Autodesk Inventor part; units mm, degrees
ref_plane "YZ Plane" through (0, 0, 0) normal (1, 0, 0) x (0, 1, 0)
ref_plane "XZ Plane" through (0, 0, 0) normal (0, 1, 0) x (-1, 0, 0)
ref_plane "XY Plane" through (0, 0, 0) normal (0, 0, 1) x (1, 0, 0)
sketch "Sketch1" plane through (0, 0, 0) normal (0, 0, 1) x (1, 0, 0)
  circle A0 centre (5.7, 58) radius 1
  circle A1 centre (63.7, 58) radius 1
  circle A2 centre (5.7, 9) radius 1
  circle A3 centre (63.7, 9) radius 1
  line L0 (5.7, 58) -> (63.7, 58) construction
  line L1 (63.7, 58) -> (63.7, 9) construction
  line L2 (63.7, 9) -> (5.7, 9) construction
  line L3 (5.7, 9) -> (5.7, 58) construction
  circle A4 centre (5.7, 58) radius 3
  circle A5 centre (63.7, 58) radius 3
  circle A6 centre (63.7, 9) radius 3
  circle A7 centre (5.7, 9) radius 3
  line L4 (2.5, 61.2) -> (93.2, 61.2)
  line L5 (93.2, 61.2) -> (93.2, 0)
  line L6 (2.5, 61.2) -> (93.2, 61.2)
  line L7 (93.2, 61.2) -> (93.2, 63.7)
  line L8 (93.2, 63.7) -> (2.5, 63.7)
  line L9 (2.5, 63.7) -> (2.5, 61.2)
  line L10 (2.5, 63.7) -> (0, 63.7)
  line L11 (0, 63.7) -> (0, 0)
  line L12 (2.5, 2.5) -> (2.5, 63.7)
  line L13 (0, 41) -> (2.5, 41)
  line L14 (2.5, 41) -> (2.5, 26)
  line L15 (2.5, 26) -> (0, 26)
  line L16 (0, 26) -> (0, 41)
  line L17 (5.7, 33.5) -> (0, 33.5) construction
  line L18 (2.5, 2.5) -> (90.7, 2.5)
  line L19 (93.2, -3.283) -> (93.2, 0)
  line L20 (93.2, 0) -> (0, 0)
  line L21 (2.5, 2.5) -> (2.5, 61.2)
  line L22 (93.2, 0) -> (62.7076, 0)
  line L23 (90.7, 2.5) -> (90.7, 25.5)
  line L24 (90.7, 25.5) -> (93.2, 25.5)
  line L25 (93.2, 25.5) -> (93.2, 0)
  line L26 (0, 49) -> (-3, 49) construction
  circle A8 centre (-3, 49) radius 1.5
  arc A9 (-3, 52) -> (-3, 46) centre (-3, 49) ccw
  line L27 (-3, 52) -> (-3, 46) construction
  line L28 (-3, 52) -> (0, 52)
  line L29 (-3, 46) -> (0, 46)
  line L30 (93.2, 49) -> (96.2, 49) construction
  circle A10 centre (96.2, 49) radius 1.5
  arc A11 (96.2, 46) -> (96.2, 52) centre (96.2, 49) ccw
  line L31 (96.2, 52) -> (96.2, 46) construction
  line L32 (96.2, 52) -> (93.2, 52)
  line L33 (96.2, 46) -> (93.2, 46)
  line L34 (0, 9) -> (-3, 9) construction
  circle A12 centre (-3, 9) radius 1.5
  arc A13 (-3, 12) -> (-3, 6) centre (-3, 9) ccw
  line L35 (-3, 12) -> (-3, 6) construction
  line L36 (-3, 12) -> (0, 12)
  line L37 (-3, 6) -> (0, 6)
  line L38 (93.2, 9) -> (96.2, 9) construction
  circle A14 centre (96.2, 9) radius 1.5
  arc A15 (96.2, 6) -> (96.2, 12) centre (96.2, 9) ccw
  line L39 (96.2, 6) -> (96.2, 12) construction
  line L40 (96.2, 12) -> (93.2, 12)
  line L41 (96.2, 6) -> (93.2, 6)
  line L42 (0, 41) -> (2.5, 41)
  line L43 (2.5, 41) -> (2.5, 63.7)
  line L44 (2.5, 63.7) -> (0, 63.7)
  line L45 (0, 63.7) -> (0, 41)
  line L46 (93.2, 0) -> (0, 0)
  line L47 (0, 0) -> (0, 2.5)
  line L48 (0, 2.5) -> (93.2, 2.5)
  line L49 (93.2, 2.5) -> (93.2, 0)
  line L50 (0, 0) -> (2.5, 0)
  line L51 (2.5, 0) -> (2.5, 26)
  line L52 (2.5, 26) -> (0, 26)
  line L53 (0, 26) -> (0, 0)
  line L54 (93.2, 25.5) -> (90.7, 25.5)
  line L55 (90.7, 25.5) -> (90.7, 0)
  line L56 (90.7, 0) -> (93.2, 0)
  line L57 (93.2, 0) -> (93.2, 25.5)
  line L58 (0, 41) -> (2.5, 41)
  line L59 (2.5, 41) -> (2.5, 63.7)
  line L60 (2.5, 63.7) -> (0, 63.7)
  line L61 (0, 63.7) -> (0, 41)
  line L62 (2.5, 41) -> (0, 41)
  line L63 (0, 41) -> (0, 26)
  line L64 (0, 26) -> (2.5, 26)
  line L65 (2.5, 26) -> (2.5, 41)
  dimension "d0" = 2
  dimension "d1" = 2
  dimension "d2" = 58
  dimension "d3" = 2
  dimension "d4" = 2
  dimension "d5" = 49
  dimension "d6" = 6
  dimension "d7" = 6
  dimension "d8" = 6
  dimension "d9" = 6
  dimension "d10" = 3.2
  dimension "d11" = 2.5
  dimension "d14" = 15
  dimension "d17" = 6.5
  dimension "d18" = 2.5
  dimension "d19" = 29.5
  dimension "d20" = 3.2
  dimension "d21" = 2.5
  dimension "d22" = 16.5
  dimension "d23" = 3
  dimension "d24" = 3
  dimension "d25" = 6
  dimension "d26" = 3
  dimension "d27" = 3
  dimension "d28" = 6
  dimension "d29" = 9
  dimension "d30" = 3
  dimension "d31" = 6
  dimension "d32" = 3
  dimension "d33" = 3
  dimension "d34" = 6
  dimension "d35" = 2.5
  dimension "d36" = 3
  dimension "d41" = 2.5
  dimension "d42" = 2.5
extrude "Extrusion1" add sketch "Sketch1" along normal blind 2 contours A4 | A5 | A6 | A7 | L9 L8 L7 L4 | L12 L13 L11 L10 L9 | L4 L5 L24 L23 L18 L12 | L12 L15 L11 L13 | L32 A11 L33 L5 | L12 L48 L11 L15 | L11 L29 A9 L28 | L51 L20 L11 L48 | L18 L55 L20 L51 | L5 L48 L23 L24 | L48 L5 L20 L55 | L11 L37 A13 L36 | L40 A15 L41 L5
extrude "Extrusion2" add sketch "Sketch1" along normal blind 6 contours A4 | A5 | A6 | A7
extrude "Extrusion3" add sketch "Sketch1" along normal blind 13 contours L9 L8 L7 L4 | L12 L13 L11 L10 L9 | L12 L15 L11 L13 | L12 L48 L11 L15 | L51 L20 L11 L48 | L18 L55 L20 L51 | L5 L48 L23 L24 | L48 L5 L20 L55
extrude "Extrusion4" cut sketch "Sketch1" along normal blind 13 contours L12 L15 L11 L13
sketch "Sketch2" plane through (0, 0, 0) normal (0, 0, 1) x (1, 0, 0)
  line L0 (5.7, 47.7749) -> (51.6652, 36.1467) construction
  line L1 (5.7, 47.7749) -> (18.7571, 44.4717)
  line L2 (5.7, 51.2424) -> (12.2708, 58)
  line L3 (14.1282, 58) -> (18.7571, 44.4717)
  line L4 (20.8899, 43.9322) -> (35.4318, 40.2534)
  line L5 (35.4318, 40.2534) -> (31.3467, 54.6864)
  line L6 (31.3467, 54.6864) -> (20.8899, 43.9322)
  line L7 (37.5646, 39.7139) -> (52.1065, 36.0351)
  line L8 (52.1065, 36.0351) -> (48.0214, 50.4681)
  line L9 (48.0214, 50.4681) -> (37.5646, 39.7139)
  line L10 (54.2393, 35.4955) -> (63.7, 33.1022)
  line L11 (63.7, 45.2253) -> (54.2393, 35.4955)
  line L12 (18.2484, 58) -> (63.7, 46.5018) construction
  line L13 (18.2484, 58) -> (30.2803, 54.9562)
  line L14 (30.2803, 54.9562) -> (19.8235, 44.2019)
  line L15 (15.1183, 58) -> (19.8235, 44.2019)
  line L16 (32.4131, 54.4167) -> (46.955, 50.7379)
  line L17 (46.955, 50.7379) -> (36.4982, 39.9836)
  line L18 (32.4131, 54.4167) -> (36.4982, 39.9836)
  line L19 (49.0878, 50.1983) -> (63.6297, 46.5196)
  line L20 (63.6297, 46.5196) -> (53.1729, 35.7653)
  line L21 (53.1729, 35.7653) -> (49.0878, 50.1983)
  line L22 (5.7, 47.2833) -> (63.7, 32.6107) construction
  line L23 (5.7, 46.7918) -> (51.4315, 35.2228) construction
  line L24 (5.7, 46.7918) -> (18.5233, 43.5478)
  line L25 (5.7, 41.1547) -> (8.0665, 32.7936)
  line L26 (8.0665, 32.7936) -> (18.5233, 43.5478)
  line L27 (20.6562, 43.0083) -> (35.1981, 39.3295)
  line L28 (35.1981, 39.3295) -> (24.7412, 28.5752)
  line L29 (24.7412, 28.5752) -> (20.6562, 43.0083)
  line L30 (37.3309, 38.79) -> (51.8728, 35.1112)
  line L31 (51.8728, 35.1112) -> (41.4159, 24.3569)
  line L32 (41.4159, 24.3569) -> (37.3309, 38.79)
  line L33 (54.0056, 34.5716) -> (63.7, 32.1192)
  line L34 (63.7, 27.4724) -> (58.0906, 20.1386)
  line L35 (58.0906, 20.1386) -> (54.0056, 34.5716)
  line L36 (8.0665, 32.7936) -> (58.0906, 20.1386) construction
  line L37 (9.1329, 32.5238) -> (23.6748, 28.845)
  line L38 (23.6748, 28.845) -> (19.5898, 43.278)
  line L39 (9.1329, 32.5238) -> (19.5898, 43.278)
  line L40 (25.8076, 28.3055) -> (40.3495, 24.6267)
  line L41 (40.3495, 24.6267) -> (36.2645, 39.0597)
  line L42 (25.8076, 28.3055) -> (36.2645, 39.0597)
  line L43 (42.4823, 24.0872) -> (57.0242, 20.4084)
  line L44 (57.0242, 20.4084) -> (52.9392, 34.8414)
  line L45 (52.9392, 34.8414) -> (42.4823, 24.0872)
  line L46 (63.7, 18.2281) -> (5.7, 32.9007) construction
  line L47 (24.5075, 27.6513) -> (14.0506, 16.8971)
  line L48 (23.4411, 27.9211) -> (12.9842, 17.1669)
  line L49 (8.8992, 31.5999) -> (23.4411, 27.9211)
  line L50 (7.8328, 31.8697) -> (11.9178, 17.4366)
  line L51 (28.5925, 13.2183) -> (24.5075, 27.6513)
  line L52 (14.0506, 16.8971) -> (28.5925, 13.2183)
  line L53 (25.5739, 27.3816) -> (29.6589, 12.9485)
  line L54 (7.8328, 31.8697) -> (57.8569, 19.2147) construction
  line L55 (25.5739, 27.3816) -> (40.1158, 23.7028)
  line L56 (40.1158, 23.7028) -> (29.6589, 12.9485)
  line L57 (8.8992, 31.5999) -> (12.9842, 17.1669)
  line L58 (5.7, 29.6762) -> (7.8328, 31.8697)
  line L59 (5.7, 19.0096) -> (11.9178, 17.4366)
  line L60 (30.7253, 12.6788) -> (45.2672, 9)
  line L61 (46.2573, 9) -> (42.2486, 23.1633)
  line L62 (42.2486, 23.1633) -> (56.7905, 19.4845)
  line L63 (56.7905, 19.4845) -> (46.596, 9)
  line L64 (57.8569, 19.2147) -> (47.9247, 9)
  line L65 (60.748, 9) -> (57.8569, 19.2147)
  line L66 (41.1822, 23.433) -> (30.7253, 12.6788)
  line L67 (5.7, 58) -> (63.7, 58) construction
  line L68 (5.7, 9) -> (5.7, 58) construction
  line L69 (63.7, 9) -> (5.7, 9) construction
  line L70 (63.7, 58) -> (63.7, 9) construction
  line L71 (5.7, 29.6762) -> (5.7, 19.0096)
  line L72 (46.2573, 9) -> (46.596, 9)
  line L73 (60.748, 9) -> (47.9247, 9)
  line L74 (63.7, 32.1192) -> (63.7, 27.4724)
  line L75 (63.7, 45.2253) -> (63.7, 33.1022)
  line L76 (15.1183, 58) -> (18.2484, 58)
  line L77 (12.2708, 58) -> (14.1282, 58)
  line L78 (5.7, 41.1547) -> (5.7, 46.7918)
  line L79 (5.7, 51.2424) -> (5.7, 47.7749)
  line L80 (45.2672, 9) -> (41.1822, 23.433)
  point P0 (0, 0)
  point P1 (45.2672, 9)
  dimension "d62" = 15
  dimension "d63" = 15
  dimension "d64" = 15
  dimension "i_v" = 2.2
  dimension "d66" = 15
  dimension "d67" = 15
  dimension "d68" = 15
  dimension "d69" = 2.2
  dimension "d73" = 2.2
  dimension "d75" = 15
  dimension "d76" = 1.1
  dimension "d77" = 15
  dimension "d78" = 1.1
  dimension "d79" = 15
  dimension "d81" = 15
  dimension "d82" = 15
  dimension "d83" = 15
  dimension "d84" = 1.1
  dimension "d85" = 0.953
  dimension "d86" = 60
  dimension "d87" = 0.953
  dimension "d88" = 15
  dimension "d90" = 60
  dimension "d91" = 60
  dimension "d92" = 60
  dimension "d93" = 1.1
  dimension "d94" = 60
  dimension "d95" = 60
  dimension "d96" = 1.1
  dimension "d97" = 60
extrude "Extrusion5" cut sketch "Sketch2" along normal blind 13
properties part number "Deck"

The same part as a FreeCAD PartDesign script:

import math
import FreeCAD as App
import Part
import Sketcher

V = App.Vector
Q = App.Units.Quantity

doc = App.newDocument("Part")
body = doc.addObject("PartDesign::Body", "Body")

sketch1 = body.newObject("Sketcher::SketchObject", "Sketch")
sketch1.AttachmentSupport = (doc.getObject("XY_Plane"), [""])
sketch1.MapMode = "FlatFace"
sketch1.addGeometry([
    Part.LineSegment(V(93.2, 52, 0), V(93.2, 63.7, 0)),
    Part.LineSegment(V(93.2, 63.7, 0), V(0, 63.7, 0)),
    Part.LineSegment(V(0, 63.7, 0), V(0, 52, 0)),
    Part.LineSegment(V(0, 52, 0), V(-3, 52, 0)),
    Part.ArcOfCircle(Part.Circle(V(-3, 49, 0), V(0, 0, 1), 3), math.radians(90), math.radians(270)),
    Part.LineSegment(V(-3, 46, 0), V(0, 46, 0)),
    Part.LineSegment(V(0, 46, 0), V(0, 12, 0)),
    Part.LineSegment(V(0, 12, 0), V(-3, 12, 0)),
    Part.ArcOfCircle(Part.Circle(V(-3, 9, 0), V(0, 0, 1), 3), math.radians(90), math.radians(270)),
    Part.LineSegment(V(-3, 6, 0), V(0, 6, 0)),
    Part.LineSegment(V(0, 6, 0), V(0, 0, 0)),
    Part.LineSegment(V(0, 0, 0), V(93.2, 0, 0)),
    Part.LineSegment(V(93.2, 0, 0), V(93.2, 6, 0)),
    Part.LineSegment(V(93.2, 6, 0), V(96.2, 6, 0)),
    Part.ArcOfCircle(Part.Circle(V(96.2, 9, 0), V(0, 0, 1), 3), math.radians(-90), math.radians(90)),
    Part.LineSegment(V(96.2, 12, 0), V(93.2, 12, 0)),
    Part.LineSegment(V(93.2, 12, 0), V(93.2, 46, 0)),
    Part.LineSegment(V(93.2, 46, 0), V(96.2, 46, 0)),
    Part.ArcOfCircle(Part.Circle(V(96.2, 49, 0), V(0, 0, 1), 3), math.radians(-90), math.radians(90)),
    Part.LineSegment(V(96.2, 52, 0), V(93.2, 52, 0)),
    Part.Circle(V(5.7, 58, 0), V(0, 0, 1), 1),
    Part.Circle(V(96.2, 49, 0), V(0, 0, 1), 1.5),
    Part.Circle(V(5.7, 9, 0), V(0, 0, 1), 1),
    Part.Circle(V(63.7, 9, 0), V(0, 0, 1), 1),
    Part.Circle(V(63.7, 58, 0), V(0, 0, 1), 1),
    Part.Circle(V(96.2, 9, 0), V(0, 0, 1), 1.5),
    Part.Circle(V(-3, 9, 0), V(0, 0, 1), 1.5),
    Part.Circle(V(-3, 49, 0), V(0, 0, 1), 1.5),
], False)
sketch1.addConstraint([
    Sketcher.Constraint("Coincident", 0, 2, 1, 1),
    Sketcher.Constraint("Coincident", 1, 2, 2, 1),
    Sketcher.Constraint("Coincident", 2, 2, 3, 1),
    Sketcher.Constraint("Tangent", 3, 2, 4, 1),
    Sketcher.Constraint("Tangent", 4, 2, 5, 1),
    Sketcher.Constraint("Coincident", 5, 2, 6, 1),
    Sketcher.Constraint("Coincident", 6, 2, 7, 1),
    Sketcher.Constraint("Tangent", 7, 2, 8, 1),
    Sketcher.Constraint("Tangent", 8, 2, 9, 1),
    Sketcher.Constraint("Coincident", 9, 2, 10, 1),
    Sketcher.Constraint("Coincident", 10, 2, 11, 1),
    Sketcher.Constraint("Coincident", 11, 2, 12, 1),
    Sketcher.Constraint("Coincident", 12, 2, 13, 1),
    Sketcher.Constraint("Tangent", 13, 2, 14, 1),
    Sketcher.Constraint("Tangent", 14, 2, 15, 1),
    Sketcher.Constraint("Coincident", 15, 2, 16, 1),
    Sketcher.Constraint("Coincident", 16, 2, 17, 1),
    Sketcher.Constraint("Tangent", 17, 2, 18, 1),
    Sketcher.Constraint("Tangent", 18, 2, 19, 1),
    Sketcher.Constraint("Coincident", 19, 2, 0, 1),
    Sketcher.Constraint("Vertical", 0),
    Sketcher.Constraint("Horizontal", 1),
    Sketcher.Constraint("Vertical", 2),
    Sketcher.Constraint("Horizontal", 3),
    Sketcher.Constraint("Horizontal", 5),
    Sketcher.Constraint("Vertical", 6),
    Sketcher.Constraint("Horizontal", 7),
    Sketcher.Constraint("Horizontal", 9),
    Sketcher.Constraint("Vertical", 10),
    Sketcher.Constraint("Horizontal", 11),
    Sketcher.Constraint("Vertical", 12),
    Sketcher.Constraint("Horizontal", 13),
    Sketcher.Constraint("Horizontal", 15),
    Sketcher.Constraint("Vertical", 16),
    Sketcher.Constraint("Horizontal", 17),
    Sketcher.Constraint("Horizontal", 19),
    Sketcher.Constraint("Coincident", 10, 2, -1, 1),
    Sketcher.Constraint("Coincident", 21, 3, 18, 3),
    Sketcher.Constraint("Coincident", 25, 3, 14, 3),
    Sketcher.Constraint("Coincident", 26, 3, 8, 3),
    Sketcher.Constraint("Coincident", 27, 3, 4, 3),
    Sketcher.Constraint("Equal", 4, 8),
    Sketcher.Constraint("Equal", 8, 14),
    Sketcher.Constraint("Equal", 14, 18),
    Sketcher.Constraint("Equal", 20, 22),
    Sketcher.Constraint("Equal", 22, 23),
    Sketcher.Constraint("Equal", 23, 24),
    Sketcher.Constraint("Equal", 21, 25),
    Sketcher.Constraint("Equal", 25, 26),
    Sketcher.Constraint("Equal", 26, 27),
    Sketcher.Constraint("PointOnObject", 1, 2, -2),
    Sketcher.Constraint("PointOnObject", 5, 2, -2),
    Sketcher.Constraint("Horizontal", 8, 3, 14, 3),
    Sketcher.Constraint("Horizontal", 4, 3, 18, 3),
    Sketcher.Constraint("Horizontal", 14, 3, 22, 3),
    Sketcher.Constraint("Horizontal", 22, 3, 23, 3),
    Sketcher.Constraint("Horizontal", 20, 3, 24, 3),
    Sketcher.Constraint("Vertical", 4, 3, 8, 3),
    Sketcher.Constraint("Vertical", 14, 3, 18, 3),
    Sketcher.Constraint("Vertical", 20, 3, 22, 3),
    Sketcher.Constraint("Vertical", 23, 3, 24, 3),
    Sketcher.Constraint("Vertical", 0, 2, 11, 2),
    Sketcher.Constraint("Vertical", 12, 2, 15, 2),
    Sketcher.Constraint("Equal", 9, 13),
    Sketcher.Constraint("Diameter", 20, 2.0),
    Sketcher.Constraint("Diameter", 21, 3.0),
    Sketcher.Constraint("Radius", 4, 3.0),
    Sketcher.Constraint("DistanceX", 3, 2, 3, 1, 3.0),
    Sketcher.Constraint("DistanceY", 10, 2, 10, 1, 6.0),
    Sketcher.Constraint("DistanceY", -1, 1, 4, 3, 49.0),
    Sketcher.Constraint("DistanceY", -1, 1, 20, 3, 58.0),
    Sketcher.Constraint("DistanceX", 22, 3, 23, 3, 58.0),
    Sketcher.Constraint("DistanceX", 24, 3, 0, 2, 29.5),
    Sketcher.Constraint("DistanceX", 1, 2, 1, 1, 93.2),
    Sketcher.Constraint("DistanceY", 0, 1, 0, 2, 11.7),
])
pad1 = body.newObject("PartDesign::Pad", "Pad")
pad1.Profile = sketch1
pad1.Length = 2

sketch2 = body.newObject("Sketcher::SketchObject", "Sketch001")
sketch2.AttachmentSupport = (doc.getObject("XY_Plane"), [""])
sketch2.MapMode = "FlatFace"
sketch2.addGeometry([
    Part.Circle(V(5.7, 58, 0), V(0, 0, 1), 3),
    Part.Circle(V(5.7, 58, 0), V(0, 0, 1), 1),
    Part.Circle(V(63.7, 58, 0), V(0, 0, 1), 3),
    Part.Circle(V(63.7, 58, 0), V(0, 0, 1), 1),
    Part.Circle(V(63.7, 9, 0), V(0, 0, 1), 3),
    Part.Circle(V(63.7, 9, 0), V(0, 0, 1), 1),
    Part.Circle(V(5.7, 9, 0), V(0, 0, 1), 3),
    Part.Circle(V(5.7, 9, 0), V(0, 0, 1), 1),
], False)
sketch2.addConstraint([
    Sketcher.Constraint("Coincident", 1, 3, 0, 3),
    Sketcher.Constraint("Coincident", 3, 3, 2, 3),
    Sketcher.Constraint("Coincident", 5, 3, 4, 3),
    Sketcher.Constraint("Coincident", 7, 3, 6, 3),
    Sketcher.Constraint("Equal", 0, 2),
    Sketcher.Constraint("Equal", 1, 3),
    Sketcher.Constraint("Equal", 2, 4),
    Sketcher.Constraint("Equal", 3, 5),
    Sketcher.Constraint("Equal", 4, 6),
    Sketcher.Constraint("Equal", 5, 7),
    Sketcher.Constraint("Horizontal", 1, 3, 2, 3),
    Sketcher.Constraint("Horizontal", 5, 3, 6, 3),
    Sketcher.Constraint("Vertical", 3, 3, 4, 3),
    Sketcher.Constraint("Vertical", 1, 3, 6, 3),
    Sketcher.Constraint("Diameter", 0, 6.0),
    Sketcher.Constraint("Diameter", 1, 2.0),
    Sketcher.Constraint("DistanceY", -1, 1, 0, 3, 58.0),
    Sketcher.Constraint("DistanceY", -1, 1, 4, 3, 9.0),
    Sketcher.Constraint("DistanceX", 0, 3, 2, 3, 58.0),
    Sketcher.Constraint("DistanceX", -1, 1, 0, 3, 5.7),
])
pad2 = body.newObject("PartDesign::Pad", "Pad001")
pad2.Profile = sketch2
pad2.Length = 6

sketch3 = body.newObject("Sketcher::SketchObject", "Sketch002")
sketch3.AttachmentSupport = (doc.getObject("XY_Plane"), [""])
sketch3.MapMode = "FlatFace"
sketch3.addGeometry([
    Part.LineSegment(V(93.2, 63.7, 0), V(0, 63.7, 0)),
    Part.LineSegment(V(0, 63.7, 0), V(0, 0, 0)),
    Part.LineSegment(V(0, 0, 0), V(93.2, 0, 0)),
    Part.LineSegment(V(93.2, 0, 0), V(93.2, 25.5, 0)),
    Part.LineSegment(V(93.2, 25.5, 0), V(90.7, 25.5, 0)),
    Part.LineSegment(V(90.7, 25.5, 0), V(90.7, 2.5, 0)),
    Part.LineSegment(V(90.7, 2.5, 0), V(2.5, 2.5, 0)),
    Part.LineSegment(V(2.5, 2.5, 0), V(2.5, 61.2, 0)),
    Part.LineSegment(V(2.5, 61.2, 0), V(93.2, 61.2, 0)),
    Part.LineSegment(V(93.2, 61.2, 0), V(93.2, 63.7, 0)),
], False)
sketch3.addConstraint([
    Sketcher.Constraint("Coincident", 0, 2, 1, 1),
    Sketcher.Constraint("Coincident", 1, 2, 2, 1),
    Sketcher.Constraint("Coincident", 2, 2, 3, 1),
    Sketcher.Constraint("Coincident", 3, 2, 4, 1),
    Sketcher.Constraint("Coincident", 4, 2, 5, 1),
    Sketcher.Constraint("Coincident", 5, 2, 6, 1),
    Sketcher.Constraint("Coincident", 6, 2, 7, 1),
    Sketcher.Constraint("Coincident", 7, 2, 8, 1),
    Sketcher.Constraint("Coincident", 8, 2, 9, 1),
    Sketcher.Constraint("Coincident", 9, 2, 0, 1),
    Sketcher.Constraint("Horizontal", 0),
    Sketcher.Constraint("Vertical", 1),
    Sketcher.Constraint("Horizontal", 2),
    Sketcher.Constraint("Vertical", 3),
    Sketcher.Constraint("Horizontal", 4),
    Sketcher.Constraint("Vertical", 5),
    Sketcher.Constraint("Horizontal", 6),
    Sketcher.Constraint("Vertical", 7),
    Sketcher.Constraint("Horizontal", 8),
    Sketcher.Constraint("Vertical", 9),
    Sketcher.Constraint("Coincident", 1, 2, -1, 1),
    Sketcher.Constraint("Vertical", 3, 2, 8, 2),
    Sketcher.Constraint("Equal", 4, 9),
    Sketcher.Constraint("DistanceX", 4, 2, 4, 1, 2.5),
    Sketcher.Constraint("DistanceY", -1, 1, 5, 2, 2.5),
    Sketcher.Constraint("DistanceX", -1, 1, 6, 2, 2.5),
    Sketcher.Constraint("DistanceY", 5, 2, 5, 1, 23.0),
    Sketcher.Constraint("DistanceX", 0, 2, 0, 1, 93.2),
    Sketcher.Constraint("DistanceY", 1, 2, 1, 1, 63.7),
])
pad3 = body.newObject("PartDesign::Pad", "Pad002")
pad3.Profile = sketch3
pad3.Length = 13

sketch4 = body.newObject("Sketcher::SketchObject", "Sketch003")
sketch4.AttachmentSupport = (doc.getObject("XY_Plane"), [""])
sketch4.MapMode = "FlatFace"
sketch4.addGeometry([
    Part.LineSegment(V(2.5, 26, 0), V(2.5, 41, 0)),
    Part.LineSegment(V(2.5, 41, 0), V(0, 41, 0)),
    Part.LineSegment(V(0, 41, 0), V(0, 26, 0)),
    Part.LineSegment(V(0, 26, 0), V(2.5, 26, 0)),
], False)
sketch4.addConstraint([
    Sketcher.Constraint("Coincident", 0, 2, 1, 1),
    Sketcher.Constraint("Coincident", 1, 2, 2, 1),
    Sketcher.Constraint("Coincident", 2, 2, 3, 1),
    Sketcher.Constraint("Coincident", 3, 2, 0, 1),
    Sketcher.Constraint("Vertical", 0),
    Sketcher.Constraint("Horizontal", 1),
    Sketcher.Constraint("Vertical", 2),
    Sketcher.Constraint("Horizontal", 3),
    Sketcher.Constraint("PointOnObject", 1, 2, -2),
    Sketcher.Constraint("DistanceY", 0, 1, 0, 2, 15.0),
    Sketcher.Constraint("DistanceX", 1, 2, 1, 1, 2.5),
    Sketcher.Constraint("DistanceY", -1, 1, 0, 2, 41.0),
])
pocket1 = body.newObject("PartDesign::Pocket", "Pocket")
pocket1.Profile = sketch4
pocket1.Length = 13
pocket1.Reversed = True

sketch5 = body.newObject("Sketcher::SketchObject", "Sketch004")
sketch5.AttachmentSupport = (doc.getObject("XY_Plane"), [""])
sketch5.MapMode = "FlatFace"
sketch5.addGeometry([
    Part.LineSegment(V(5.7, 51.24, 0), V(5.7, 47.77, 0)),
    Part.LineSegment(V(5.7, 47.77, 0), V(18.76, 44.47, 0)),
    Part.LineSegment(V(18.76, 44.47, 0), V(14.13, 58, 0)),
    Part.LineSegment(V(14.13, 58, 0), V(12.27, 58, 0)),
    Part.LineSegment(V(12.27, 58, 0), V(5.7, 51.24, 0)),
    Part.LineSegment(V(31.35, 54.69, 0), V(20.89, 43.93, 0)),
    Part.LineSegment(V(20.89, 43.93, 0), V(35.43, 40.25, 0)),
    Part.LineSegment(V(35.43, 40.25, 0), V(31.35, 54.69, 0)),
    Part.LineSegment(V(48.02, 50.47, 0), V(37.56, 39.71, 0)),
    Part.LineSegment(V(37.56, 39.71, 0), V(52.11, 36.04, 0)),
    Part.LineSegment(V(52.11, 36.04, 0), V(48.02, 50.47, 0)),
    Part.LineSegment(V(63.7, 45.23, 0), V(54.24, 35.5, 0)),
    Part.LineSegment(V(54.24, 35.5, 0), V(63.7, 33.1, 0)),
    Part.LineSegment(V(63.7, 33.1, 0), V(63.7, 45.23, 0)),
    Part.LineSegment(V(30.28, 54.96, 0), V(18.25, 58, 0)),
    Part.LineSegment(V(18.25, 58, 0), V(15.12, 58, 0)),
    Part.LineSegment(V(15.12, 58, 0), V(19.82, 44.2, 0)),
    Part.LineSegment(V(19.82, 44.2, 0), V(30.28, 54.96, 0)),
    Part.LineSegment(V(46.95, 50.74, 0), V(32.41, 54.42, 0)),
    Part.LineSegment(V(32.41, 54.42, 0), V(36.5, 39.98, 0)),
    Part.LineSegment(V(36.5, 39.98, 0), V(46.95, 50.74, 0)),
    Part.LineSegment(V(63.63, 46.52, 0), V(49.09, 50.2, 0)),
    Part.LineSegment(V(49.09, 50.2, 0), V(53.17, 35.77, 0)),
    Part.LineSegment(V(53.17, 35.77, 0), V(63.63, 46.52, 0)),
    Part.LineSegment(V(18.52, 43.55, 0), V(5.7, 46.79, 0)),
    Part.LineSegment(V(5.7, 46.79, 0), V(5.7, 41.15, 0)),
    Part.LineSegment(V(5.7, 41.15, 0), V(8.07, 32.79, 0)),
    Part.LineSegment(V(8.07, 32.79, 0), V(18.52, 43.55, 0)),
    Part.LineSegment(V(35.2, 39.33, 0), V(20.66, 43.01, 0)),
    Part.LineSegment(V(20.66, 43.01, 0), V(24.74, 28.58, 0)),
    Part.LineSegment(V(24.74, 28.58, 0), V(35.2, 39.33, 0)),
    Part.LineSegment(V(51.87, 35.11, 0), V(37.33, 38.79, 0)),
    Part.LineSegment(V(37.33, 38.79, 0), V(41.42, 24.36, 0)),
    Part.LineSegment(V(41.42, 24.36, 0), V(51.87, 35.11, 0)),
    Part.LineSegment(V(63.7, 32.12, 0), V(54.01, 34.57, 0)),
    Part.LineSegment(V(54.01, 34.57, 0), V(58.09, 20.14, 0)),
    Part.LineSegment(V(58.09, 20.14, 0), V(63.7, 27.47, 0)),
    Part.LineSegment(V(63.7, 27.47, 0), V(63.7, 32.12, 0)),
    Part.LineSegment(V(19.59, 43.28, 0), V(9.13, 32.52, 0)),
    Part.LineSegment(V(9.13, 32.52, 0), V(23.67, 28.84, 0)),
    Part.LineSegment(V(23.67, 28.84, 0), V(19.59, 43.28, 0)),
    Part.LineSegment(V(36.26, 39.06, 0), V(25.81, 28.31, 0)),
    Part.LineSegment(V(25.81, 28.31, 0), V(40.35, 24.63, 0)),
    Part.LineSegment(V(40.35, 24.63, 0), V(36.26, 39.06, 0)),
    Part.LineSegment(V(52.94, 34.84, 0), V(42.48, 24.09, 0)),
    Part.LineSegment(V(42.48, 24.09, 0), V(57.02, 20.41, 0)),
    Part.LineSegment(V(57.02, 20.41, 0), V(52.94, 34.84, 0)),
    Part.LineSegment(V(28.59, 13.22, 0), V(24.51, 27.65, 0)),
    Part.LineSegment(V(24.51, 27.65, 0), V(14.05, 16.9, 0)),
    Part.LineSegment(V(14.05, 16.9, 0), V(28.59, 13.22, 0)),
    Part.LineSegment(V(12.98, 17.17, 0), V(23.44, 27.92, 0)),
    Part.LineSegment(V(23.44, 27.92, 0), V(8.9, 31.6, 0)),
    Part.LineSegment(V(8.9, 31.6, 0), V(12.98, 17.17, 0)),
    Part.LineSegment(V(11.92, 17.44, 0), V(7.83, 31.87, 0)),
    Part.LineSegment(V(7.83, 31.87, 0), V(5.7, 29.68, 0)),
    Part.LineSegment(V(5.7, 29.68, 0), V(5.7, 19.01, 0)),
    Part.LineSegment(V(5.7, 19.01, 0), V(11.92, 17.44, 0)),
    Part.LineSegment(V(40.12, 23.7, 0), V(25.57, 27.38, 0)),
    Part.LineSegment(V(25.57, 27.38, 0), V(29.66, 12.95, 0)),
    Part.LineSegment(V(29.66, 12.95, 0), V(40.12, 23.7, 0)),
    Part.LineSegment(V(41.18, 23.43, 0), V(30.73, 12.68, 0)),
    Part.LineSegment(V(30.73, 12.68, 0), V(45.27, 9, 0)),
    Part.LineSegment(V(45.27, 9, 0), V(41.18, 23.43, 0)),
    Part.LineSegment(V(42.25, 23.16, 0), V(46.26, 9, 0)),
    Part.LineSegment(V(46.26, 9, 0), V(46.6, 9, 0)),
    Part.LineSegment(V(46.6, 9, 0), V(56.79, 19.48, 0)),
    Part.LineSegment(V(56.79, 19.48, 0), V(42.25, 23.16, 0)),
    Part.LineSegment(V(60.75, 9, 0), V(57.86, 19.21, 0)),
    Part.LineSegment(V(57.86, 19.21, 0), V(47.92, 9, 0)),
    Part.LineSegment(V(47.92, 9, 0), V(60.75, 9, 0)),
], False)
sketch5.addConstraint([
    Sketcher.Constraint("Coincident", 0, 2, 1, 1),
    Sketcher.Constraint("Coincident", 1, 2, 2, 1),
    Sketcher.Constraint("Coincident", 2, 2, 3, 1),
    Sketcher.Constraint("Coincident", 3, 2, 4, 1),
    Sketcher.Constraint("Coincident", 4, 2, 0, 1),
    Sketcher.Constraint("Coincident", 5, 2, 6, 1),
    Sketcher.Constraint("Coincident", 6, 2, 7, 1),
    Sketcher.Constraint("Coincident", 7, 2, 5, 1),
    Sketcher.Constraint("Coincident", 8, 2, 9, 1),
    Sketcher.Constraint("Coincident", 9, 2, 10, 1),
    Sketcher.Constraint("Coincident", 10, 2, 8, 1),
    Sketcher.Constraint("Coincident", 11, 2, 12, 1),
    Sketcher.Constraint("Coincident", 12, 2, 13, 1),
    Sketcher.Constraint("Coincident", 13, 2, 11, 1),
    Sketcher.Constraint("Coincident", 14, 2, 15, 1),
    Sketcher.Constraint("Coincident", 15, 2, 16, 1),
    Sketcher.Constraint("Coincident", 16, 2, 17, 1),
    Sketcher.Constraint("Coincident", 17, 2, 14, 1),
    Sketcher.Constraint("Coincident", 18, 2, 19, 1),
    Sketcher.Constraint("Coincident", 19, 2, 20, 1),
    Sketcher.Constraint("Coincident", 20, 2, 18, 1),
    Sketcher.Constraint("Coincident", 21, 2, 22, 1),
    Sketcher.Constraint("Coincident", 22, 2, 23, 1),
    Sketcher.Constraint("Coincident", 23, 2, 21, 1),
    Sketcher.Constraint("Coincident", 24, 2, 25, 1),
    Sketcher.Constraint("Coincident", 25, 2, 26, 1),
    Sketcher.Constraint("Coincident", 26, 2, 27, 1),
    Sketcher.Constraint("Coincident", 27, 2, 24, 1),
    Sketcher.Constraint("Coincident", 28, 2, 29, 1),
    Sketcher.Constraint("Coincident", 29, 2, 30, 1),
    Sketcher.Constraint("Coincident", 30, 2, 28, 1),
    Sketcher.Constraint("Coincident", 31, 2, 32, 1),
    Sketcher.Constraint("Coincident", 32, 2, 33, 1),
    Sketcher.Constraint("Coincident", 33, 2, 31, 1),
    Sketcher.Constraint("Coincident", 34, 2, 35, 1),
    Sketcher.Constraint("Coincident", 35, 2, 36, 1),
    Sketcher.Constraint("Coincident", 36, 2, 37, 1),
    Sketcher.Constraint("Coincident", 37, 2, 34, 1),
    Sketcher.Constraint("Coincident", 38, 2, 39, 1),
    Sketcher.Constraint("Coincident", 39, 2, 40, 1),
    Sketcher.Constraint("Coincident", 40, 2, 38, 1),
    Sketcher.Constraint("Coincident", 41, 2, 42, 1),
    Sketcher.Constraint("Coincident", 42, 2, 43, 1),
    Sketcher.Constraint("Coincident", 43, 2, 41, 1),
    Sketcher.Constraint("Coincident", 44, 2, 45, 1),
    Sketcher.Constraint("Coincident", 45, 2, 46, 1),
    Sketcher.Constraint("Coincident", 46, 2, 44, 1),
    Sketcher.Constraint("Coincident", 47, 2, 48, 1),
    Sketcher.Constraint("Coincident", 48, 2, 49, 1),
    Sketcher.Constraint("Coincident", 49, 2, 47, 1),
    Sketcher.Constraint("Coincident", 50, 2, 51, 1),
    Sketcher.Constraint("Coincident", 51, 2, 52, 1),
    Sketcher.Constraint("Coincident", 52, 2, 50, 1),
    Sketcher.Constraint("Coincident", 53, 2, 54, 1),
    Sketcher.Constraint("Coincident", 54, 2, 55, 1),
    Sketcher.Constraint("Coincident", 55, 2, 56, 1),
    Sketcher.Constraint("Coincident", 56, 2, 53, 1),
    Sketcher.Constraint("Coincident", 57, 2, 58, 1),
    Sketcher.Constraint("Coincident", 58, 2, 59, 1),
    Sketcher.Constraint("Coincident", 59, 2, 57, 1),
    Sketcher.Constraint("Coincident", 60, 2, 61, 1),
    Sketcher.Constraint("Coincident", 61, 2, 62, 1),
    Sketcher.Constraint("Coincident", 62, 2, 60, 1),
    Sketcher.Constraint("Coincident", 63, 2, 64, 1),
    Sketcher.Constraint("Coincident", 64, 2, 65, 1),
    Sketcher.Constraint("Coincident", 65, 2, 66, 1),
    Sketcher.Constraint("Coincident", 66, 2, 63, 1),
    Sketcher.Constraint("Coincident", 67, 2, 68, 1),
    Sketcher.Constraint("Coincident", 68, 2, 69, 1),
    Sketcher.Constraint("Coincident", 69, 2, 67, 1),
    Sketcher.Constraint("Vertical", 0),
    Sketcher.Constraint("Horizontal", 3),
    Sketcher.Constraint("Vertical", 13),
    Sketcher.Constraint("Horizontal", 15),
    Sketcher.Constraint("Vertical", 25),
    Sketcher.Constraint("Vertical", 37),
    Sketcher.Constraint("Vertical", 55),
    Sketcher.Constraint("Horizontal", 64),
    Sketcher.Constraint("Horizontal", 69),
    Sketcher.Constraint("Parallel", 4, 5),
    Sketcher.Constraint("Parallel", 1, 6),
    Sketcher.Constraint("Parallel", 5, 8),
    Sketcher.Constraint("Parallel", 6, 9),
    Sketcher.Constraint("Parallel", 7, 10),
    Sketcher.Constraint("Parallel", 8, 11),
    Sketcher.Constraint("Parallel", 9, 12),
    Sketcher.Constraint("Parallel", 12, 14),
    Sketcher.Constraint("Parallel", 11, 17),
    Sketcher.Constraint("Parallel", 14, 18),
    Sketcher.Constraint("Parallel", 10, 19),
    Sketcher.Constraint("Parallel", 17, 20),
    Sketcher.Constraint("Parallel", 18, 21),
    Sketcher.Constraint("Parallel", 19, 22),
    Sketcher.Constraint("Parallel", 20, 23),
    Sketcher.Constraint("Parallel", 21, 24),
    Sketcher.Constraint("Parallel", 22, 26),
    Sketcher.Constraint("Parallel", 23, 27),
    Sketcher.Constraint("Parallel", 24, 28),
    Sketcher.Constraint("Parallel", 26, 29),
    Sketcher.Constraint("Parallel", 27, 30),
    Sketcher.Constraint("Parallel", 28, 31),
    Sketcher.Constraint("Parallel", 29, 32),
    Sketcher.Constraint("Parallel", 30, 33),
    Sketcher.Constraint("Parallel", 31, 34),
    Sketcher.Constraint("Parallel", 32, 35),
    Sketcher.Constraint("Parallel", 33, 38),
    Sketcher.Constraint("Parallel", 34, 39),
    Sketcher.Constraint("Parallel", 35, 40),
    Sketcher.Constraint("Parallel", 38, 41),
    Sketcher.Constraint("Parallel", 39, 42),
    Sketcher.Constraint("Parallel", 40, 43),
    Sketcher.Constraint("Parallel", 41, 44),
    Sketcher.Constraint("Parallel", 42, 45),
    Sketcher.Constraint("Parallel", 43, 46),
    Sketcher.Constraint("Parallel", 46, 47),
    Sketcher.Constraint("Parallel", 44, 48),
    Sketcher.Constraint("Parallel", 45, 49),
    Sketcher.Constraint("Parallel", 48, 50),
    Sketcher.Constraint("Parallel", 49, 51),
    Sketcher.Constraint("Parallel", 47, 52),
    Sketcher.Constraint("Parallel", 52, 53),
    Sketcher.Constraint("Parallel", 50, 54),
    Sketcher.Constraint("Parallel", 51, 56),
    Sketcher.Constraint("Parallel", 56, 57),
    Sketcher.Constraint("Parallel", 53, 58),
    Sketcher.Constraint("Parallel", 54, 59),
    Sketcher.Constraint("Parallel", 59, 60),
    Sketcher.Constraint("Parallel", 57, 61),
    Sketcher.Constraint("Parallel", 58, 62),
    Sketcher.Constraint("Parallel", 62, 63),
    Sketcher.Constraint("Parallel", 60, 65),
    Sketcher.Constraint("Parallel", 61, 66),
    Sketcher.Constraint("Parallel", 63, 67),
    Sketcher.Constraint("Parallel", 65, 68),
    Sketcher.Constraint("Horizontal", 3, 2, 14, 2),
    Sketcher.Constraint("Horizontal", 61, 2, 63, 2),
    Sketcher.Constraint("Horizontal", 64, 2, 68, 2),
    Sketcher.Constraint("Vertical", 4, 2, 24, 2),
    Sketcher.Constraint("Vertical", 13, 2, 36, 2),
    Sketcher.Constraint("Vertical", 25, 2, 54, 2),
    Sketcher.Constraint("Equal", 5, 6),
    Sketcher.Constraint("Equal", 6, 7),
    Sketcher.Constraint("Equal", 7, 8),
    Sketcher.Constraint("Equal", 10, 17),
    Sketcher.Constraint("Equal", 17, 18),
    Sketcher.Constraint("Equal", 20, 21),
    Sketcher.Constraint("Equal", 23, 27),
    Sketcher.Constraint("Equal", 27, 28),
    Sketcher.Constraint("Equal", 30, 31),
    Sketcher.Constraint("Equal", 33, 35),
    Sketcher.Constraint("Equal", 35, 38),
    Sketcher.Constraint("Equal", 40, 41),
    Sketcher.Constraint("Equal", 43, 44),
    Sketcher.Constraint("Equal", 46, 47),
    Sketcher.Constraint("Equal", 49, 50),
    Sketcher.Constraint("Equal", 52, 53),
    Sketcher.Constraint("Equal", 53, 57),
    Sketcher.Constraint("Equal", 59, 60),
    Sketcher.Constraint("Equal", 62, 66),
    Sketcher.Constraint("Distance", 5, 15.0),
    Sketcher.Constraint("DistanceY", -1, 1, 2, 2, 58.0),
    Sketcher.Constraint("DistanceY", -1, 1, 61, 2, 9.0),
    Sketcher.Constraint("DistanceX", 15, 2, 15, 1, 3.13),
    Sketcher.Constraint("DistanceX", -1, 1, 0, 2, 5.7),
    Sketcher.Constraint("DistanceX", -1, 1, 12, 2, 63.7),
    Sketcher.Constraint("DistanceY", -1, 1, 51, 2, 31.6),
    Sketcher.Constraint("Angle", 2, Q("108.889 deg")),
    Sketcher.Constraint("Angle", 16, Q("-71.1704 deg")),
    Sketcher.Constraint("DistanceY", 13, 1, 13, 2, 12.123),
    Sketcher.Constraint("DistanceY", 25, 2, 25, 1, 5.637),
    Sketcher.Constraint("DistanceX", -1, 1, 5, 2, 20.89),
    Sketcher.Constraint("DistanceY", -1, 1, 31, 2, 38.79),
    Sketcher.Constraint("Distance", 11, 13.571),
    Sketcher.Constraint("Distance", 36, 9.233),
    Sketcher.Constraint("Distance", 67, 10.616),
    Sketcher.Constraint("DistanceX", 3, 2, 3, 1, 1.8574),
    Sketcher.Constraint("DistanceX", 64, 1, 64, 2, 0.3387),
    Sketcher.Constraint("DistanceY", 0, 2, 0, 1, 3.4675),
    Sketcher.Constraint("DistanceY", 37, 1, 37, 2, 4.6468),
    Sketcher.Constraint("DistanceY", 55, 2, 55, 1, 10.6666),
    Sketcher.Constraint("DistanceY", -1, 1, 0, 2, 47.775),
    Sketcher.Constraint("DistanceY", -1, 1, 8, 2, 39.714),
    Sketcher.Constraint("DistanceX", -1, 1, 18, 2, 32.413),
    Sketcher.Constraint("DistanceY", -1, 1, 20, 2, 50.738),
    Sketcher.Constraint("DistanceX", -1, 1, 22, 2, 53.173),
    Sketcher.Constraint("DistanceX", -1, 1, 30, 2, 35.198),
    Sketcher.Constraint("DistanceX", -1, 1, 31, 2, 37.331),
    Sketcher.Constraint("DistanceX", -1, 1, 38, 2, 9.133),
    Sketcher.Constraint("DistanceY", -1, 1, 39, 2, 28.845),
    Sketcher.Constraint("DistanceY", -1, 1, 48, 2, 16.897),
    Sketcher.Constraint("DistanceX", -1, 1, 50, 2, 23.441),
    Sketcher.Constraint("DistanceX", -1, 1, 57, 2, 25.574),
    Sketcher.Constraint("DistanceX", -1, 1, 64, 2, 46.596),
    Sketcher.Constraint("DistanceX", -1, 1, 67, 2, 57.857),
    Sketcher.Constraint("DistanceY", -1, 1, 5, 2, 43.9322),
    Sketcher.Constraint("DistanceX", -1, 1, 8, 2, 37.5646),
    Sketcher.Constraint("DistanceY", -1, 1, 11, 2, 35.4955),
    Sketcher.Constraint("DistanceX", -1, 1, 14, 2, 18.2484),
    Sketcher.Constraint("DistanceY", -1, 1, 21, 2, 50.1983),
    Sketcher.Constraint("DistanceY", -1, 1, 24, 2, 46.7918),
    Sketcher.Constraint("DistanceY", -1, 1, 28, 2, 43.0083),
    Sketcher.Constraint("DistanceY", -1, 1, 34, 2, 34.5716),
    Sketcher.Constraint("DistanceX", -1, 1, 41, 2, 25.8076),
    Sketcher.Constraint("DistanceY", -1, 1, 41, 2, 28.3055),
    Sketcher.Constraint("DistanceX", -1, 1, 44, 2, 42.4823),
    Sketcher.Constraint("DistanceY", -1, 1, 44, 2, 24.0872),
    Sketcher.Constraint("DistanceX", -1, 1, 47, 2, 24.5075),
    Sketcher.Constraint("DistanceY", -1, 1, 53, 2, 31.8697),
    Sketcher.Constraint("DistanceY", -1, 1, 57, 2, 27.3816),
    Sketcher.Constraint("DistanceX", -1, 1, 60, 2, 30.7253),
])
pocket2 = body.newObject("PartDesign::Pocket", "Pocket001")
pocket2.Profile = sketch5
pocket2.Length = 13
pocket2.Reversed = True

doc.recompute()
